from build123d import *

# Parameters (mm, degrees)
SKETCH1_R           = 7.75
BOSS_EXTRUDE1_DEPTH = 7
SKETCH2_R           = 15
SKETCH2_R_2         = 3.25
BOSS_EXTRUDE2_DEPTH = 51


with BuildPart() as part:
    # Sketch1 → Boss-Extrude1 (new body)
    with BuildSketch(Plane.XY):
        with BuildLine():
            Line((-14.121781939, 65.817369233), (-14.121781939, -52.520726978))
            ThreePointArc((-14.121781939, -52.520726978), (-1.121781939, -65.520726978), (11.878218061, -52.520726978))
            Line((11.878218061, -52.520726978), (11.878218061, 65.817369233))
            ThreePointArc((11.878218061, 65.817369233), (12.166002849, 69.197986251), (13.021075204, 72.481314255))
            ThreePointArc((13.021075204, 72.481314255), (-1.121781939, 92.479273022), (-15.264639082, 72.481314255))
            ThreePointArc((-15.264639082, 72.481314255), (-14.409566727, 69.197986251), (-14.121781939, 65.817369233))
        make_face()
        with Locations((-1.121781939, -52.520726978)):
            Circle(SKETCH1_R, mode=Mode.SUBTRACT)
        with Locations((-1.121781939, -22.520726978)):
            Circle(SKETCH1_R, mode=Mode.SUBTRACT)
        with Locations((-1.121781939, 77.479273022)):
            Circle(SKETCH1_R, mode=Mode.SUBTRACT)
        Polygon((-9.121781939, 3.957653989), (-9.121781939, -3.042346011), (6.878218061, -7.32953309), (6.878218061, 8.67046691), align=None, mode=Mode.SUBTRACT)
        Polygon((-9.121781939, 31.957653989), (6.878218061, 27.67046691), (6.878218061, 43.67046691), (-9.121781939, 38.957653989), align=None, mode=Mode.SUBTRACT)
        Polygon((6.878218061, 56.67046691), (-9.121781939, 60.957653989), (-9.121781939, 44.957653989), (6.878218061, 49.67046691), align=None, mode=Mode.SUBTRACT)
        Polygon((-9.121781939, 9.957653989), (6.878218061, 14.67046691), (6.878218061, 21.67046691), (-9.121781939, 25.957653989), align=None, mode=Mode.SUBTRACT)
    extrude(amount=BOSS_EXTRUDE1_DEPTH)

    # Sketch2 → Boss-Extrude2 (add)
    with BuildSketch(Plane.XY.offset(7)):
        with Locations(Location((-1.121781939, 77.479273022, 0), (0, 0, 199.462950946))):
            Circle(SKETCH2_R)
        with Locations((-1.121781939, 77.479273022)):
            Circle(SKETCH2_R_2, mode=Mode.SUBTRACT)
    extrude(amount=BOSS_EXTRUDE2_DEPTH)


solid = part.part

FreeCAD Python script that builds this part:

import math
import FreeCAD as App
import Part
import Sketcher
Q = App.Units.Quantity


def add_polygon(sketch, points):
    """Adds a closed chain of lines whose ends are joined by coincident constraints."""
    first, n = sketch.GeometryCount, len(points)
    for a, b in zip(points, points[1:] + points[:1]):
        sketch.addGeometry(Part.LineSegment(App.Vector(*a, 0), App.Vector(*b, 0)), False)
    for i in range(n):
        sketch.addConstraint(Sketcher.Constraint("Coincident", first + i, 2, first + (i + 1) % n, 1))

doc = App.newDocument("Part")
body = doc.addObject("PartDesign::Body", "Body")

sketch1 = body.newObject("Sketcher::SketchObject", "Sketch")
sketch1.AttachmentSupport = (doc.getObject("XY_Plane"), [""])
sketch1.MapMode = "FlatFace"
sketch1.addGeometry(Part.LineSegment(App.Vector(-14.121782, 65.817369, 0), App.Vector(-14.121782, -52.520727, 0)), False)
sketch1.addGeometry(Part.ArcOfCircle(Part.Circle(App.Vector(-1.121782, -52.520727, 0), App.Vector(0, 0, 1), 13), math.radians(180), math.radians(360)), False)
sketch1.addGeometry(Part.LineSegment(App.Vector(11.878218, -52.520727, 0), App.Vector(11.878218, 65.817369, 0)), False)
sketch1.addGeometry(Part.ArcOfCircle(Part.Circle(App.Vector(31.878218, 65.817369, 0), App.Vector(0, 0, 1), 20), math.radians(160.537049), math.radians(180)), False)
sketch1.addGeometry(Part.ArcOfCircle(Part.Circle(App.Vector(-1.121782, 77.479273, 0), App.Vector(0, 0, 1), 15), math.radians(-19.462951), math.radians(199.462951)), False)
sketch1.addGeometry(Part.ArcOfCircle(Part.Circle(App.Vector(-34.121782, 65.817369, 0), App.Vector(0, 0, 1), 20), math.radians(0), math.radians(19.462951)), False)
sketch1.addGeometry(Part.Circle(App.Vector(-1.121782, -52.520727, 0), App.Vector(0, 0, 1), 7.75), False)
sketch1.addGeometry(Part.Circle(App.Vector(-1.121782, -22.520727, 0), App.Vector(0, 0, 1), 7.75), False)
add_polygon(sketch1, [(-9.121782, -3.042346), (-9.121782, 3.957654), (6.878218, 8.670467), (6.878218, -7.329533)])
add_polygon(sketch1, [(6.878218, 14.670467), (-9.121782, 9.957654), (-9.121782, 25.957654), (6.878218, 21.670467)])
add_polygon(sketch1, [(6.878218, 27.670467), (-9.121782, 31.957654), (-9.121782, 38.957654), (6.878218, 43.670467)])
add_polygon(sketch1, [(-9.121782, 60.957654), (6.878218, 56.670467), (6.878218, 49.670467), (-9.121782, 44.957654)])
sketch1.addGeometry(Part.Circle(App.Vector(-1.121782, 77.479273, 0), App.Vector(0, 0, 1), 7.75), False)
sketch1.addConstraint([
    Sketcher.Constraint("Tangent", 0, 2, 1, 1),
    Sketcher.Constraint("Tangent", 1, 2, 2, 1),
    Sketcher.Constraint("Tangent", 2, 2, 3, 2),
    Sketcher.Constraint("Tangent", 3, 1, 4, 1),
    Sketcher.Constraint("Tangent", 4, 2, 5, 2),
    Sketcher.Constraint("Tangent", 5, 1, 0, 1),
    Sketcher.Constraint("Vertical", 0),
    Sketcher.Constraint("Vertical", 2),
    Sketcher.Constraint("Vertical", 8),
    Sketcher.Constraint("Vertical", 10),
    Sketcher.Constraint("Vertical", 13),
    Sketcher.Constraint("Vertical", 15),
    Sketcher.Constraint("Vertical", 17),
    Sketcher.Constraint("Vertical", 19),
    Sketcher.Constraint("Vertical", 21),
    Sketcher.Constraint("Vertical", 23),
    Sketcher.Constraint("Coincident", 6, 3, 1, 3),
    Sketcher.Constraint("Coincident", 24, 3, 4, 3),
    Sketcher.Constraint("Equal", 3, 5),
    Sketcher.Constraint("Equal", 6, 7),
    Sketcher.Constraint("Equal", 7, 24),
    Sketcher.Constraint("Parallel", 9, 12),
    Sketcher.Constraint("Parallel", 11, 14),
    Sketcher.Constraint("Parallel", 14, 16),
    Sketcher.Constraint("Parallel", 12, 18),
    Sketcher.Constraint("Parallel", 16, 20),
    Sketcher.Constraint("Parallel", 18, 22),
    Sketcher.Constraint("Horizontal", 3, 3, 5, 3),
    Sketcher.Constraint("Vertical", 6, 3, 7, 3),
    Sketcher.Constraint("Vertical", 11, 2, 12, 2),
    Sketcher.Constraint("Vertical", 10, 2, 14, 2),
    Sketcher.Constraint("Vertical", 13, 2, 16, 2),
    Sketcher.Constraint("Vertical", 15, 2, 18, 2),
    Sketcher.Constraint("Vertical", 19, 2, 20, 2),
    Sketcher.Constraint("Vertical", 17, 2, 22, 2),
    Sketcher.Constraint("Equal", 10, 13),
    Sketcher.Constraint("Equal", 15, 17),
    Sketcher.Constraint("Equal", 17, 21),
    Sketcher.Constraint("Radius", 1, Q("13 mm")),
    Sketcher.Constraint("Radius", 3, Q("20 mm")),
    Sketcher.Constraint("Radius", 4, Q("15 mm")),
    Sketcher.Constraint("Diameter", 6, Q("15.5 mm")),
    Sketcher.Constraint("DistanceY", 8, 1, 8, 2, Q("7 mm")),
    Sketcher.Constraint("DistanceY", 10, 2, 10, 1, Q("16 mm")),
    Sketcher.Constraint("Angle", 11, Q("165 deg")),
    Sketcher.Constraint("DistanceY", 1, 3, 4, 3, Q("130 mm")),
    Sketcher.Constraint("DistanceY", 1, 3, 7, 3, Q("30 mm")),
    Sketcher.Constraint("DistanceX", 8, 2, 7, 3, Q("8 mm")),
    Sketcher.Constraint("DistanceX", 8, 2, 9, 2, Q("16 mm")),
    Sketcher.Constraint("DistanceY", 8, 2, 12, 2, Q("6 mm")),
    Sketcher.Constraint("DistanceY", 13, 2, 16, 2, Q("6 mm")),
    Sketcher.Constraint("DistanceY", 18, 2, 20, 2, Q("13 mm")),
    Sketcher.Constraint("DistanceX", 1, 3, -1, 1, Q("1.121782 mm")),
    Sketcher.Constraint("DistanceY", -1, 1, 3, 3, Q("65.817369 mm")),
    Sketcher.Constraint("DistanceY", 7, 3, 8, 2, Q("26.478381 mm")),
])
pad1 = body.newObject("PartDesign::Pad", "Pad")
pad1.Profile = sketch1
pad1.Length = 7

sketch2 = body.newObject("Sketcher::SketchObject", "Sketch001")
sketch2.AttachmentSupport = (doc.getObject("XY_Plane"), [""])
sketch2.MapMode = "FlatFace"
sketch2.AttachmentOffset = App.Placement(App.Vector(0, 0, 7), App.Rotation())
sketch2.addGeometry([
    Part.Circle(App.Vector(-1.121782, 77.479273, 0), App.Vector(0, 0, 1), 15),
    Part.Circle(App.Vector(-1.121782, 77.479273, 0), App.Vector(0, 0, 1), 3.25),
], False)
sketch2.addConstraint([
    Sketcher.Constraint("Coincident", 1, 3, 0, 3),
    Sketcher.Constraint("Diameter", 0, Q("30 mm")),
    Sketcher.Constraint("Diameter", 1, Q("6.5 mm")),
    Sketcher.Constraint("DistanceX", 0, 3, -1, 1, Q("1.121782 mm")),
    Sketcher.Constraint("DistanceY", -1, 1, 0, 3, Q("77.479273 mm")),
])
pad2 = body.newObject("PartDesign::Pad", "Pad001")
pad2.Profile = sketch2
pad2.Length = 51

doc.recompute()
